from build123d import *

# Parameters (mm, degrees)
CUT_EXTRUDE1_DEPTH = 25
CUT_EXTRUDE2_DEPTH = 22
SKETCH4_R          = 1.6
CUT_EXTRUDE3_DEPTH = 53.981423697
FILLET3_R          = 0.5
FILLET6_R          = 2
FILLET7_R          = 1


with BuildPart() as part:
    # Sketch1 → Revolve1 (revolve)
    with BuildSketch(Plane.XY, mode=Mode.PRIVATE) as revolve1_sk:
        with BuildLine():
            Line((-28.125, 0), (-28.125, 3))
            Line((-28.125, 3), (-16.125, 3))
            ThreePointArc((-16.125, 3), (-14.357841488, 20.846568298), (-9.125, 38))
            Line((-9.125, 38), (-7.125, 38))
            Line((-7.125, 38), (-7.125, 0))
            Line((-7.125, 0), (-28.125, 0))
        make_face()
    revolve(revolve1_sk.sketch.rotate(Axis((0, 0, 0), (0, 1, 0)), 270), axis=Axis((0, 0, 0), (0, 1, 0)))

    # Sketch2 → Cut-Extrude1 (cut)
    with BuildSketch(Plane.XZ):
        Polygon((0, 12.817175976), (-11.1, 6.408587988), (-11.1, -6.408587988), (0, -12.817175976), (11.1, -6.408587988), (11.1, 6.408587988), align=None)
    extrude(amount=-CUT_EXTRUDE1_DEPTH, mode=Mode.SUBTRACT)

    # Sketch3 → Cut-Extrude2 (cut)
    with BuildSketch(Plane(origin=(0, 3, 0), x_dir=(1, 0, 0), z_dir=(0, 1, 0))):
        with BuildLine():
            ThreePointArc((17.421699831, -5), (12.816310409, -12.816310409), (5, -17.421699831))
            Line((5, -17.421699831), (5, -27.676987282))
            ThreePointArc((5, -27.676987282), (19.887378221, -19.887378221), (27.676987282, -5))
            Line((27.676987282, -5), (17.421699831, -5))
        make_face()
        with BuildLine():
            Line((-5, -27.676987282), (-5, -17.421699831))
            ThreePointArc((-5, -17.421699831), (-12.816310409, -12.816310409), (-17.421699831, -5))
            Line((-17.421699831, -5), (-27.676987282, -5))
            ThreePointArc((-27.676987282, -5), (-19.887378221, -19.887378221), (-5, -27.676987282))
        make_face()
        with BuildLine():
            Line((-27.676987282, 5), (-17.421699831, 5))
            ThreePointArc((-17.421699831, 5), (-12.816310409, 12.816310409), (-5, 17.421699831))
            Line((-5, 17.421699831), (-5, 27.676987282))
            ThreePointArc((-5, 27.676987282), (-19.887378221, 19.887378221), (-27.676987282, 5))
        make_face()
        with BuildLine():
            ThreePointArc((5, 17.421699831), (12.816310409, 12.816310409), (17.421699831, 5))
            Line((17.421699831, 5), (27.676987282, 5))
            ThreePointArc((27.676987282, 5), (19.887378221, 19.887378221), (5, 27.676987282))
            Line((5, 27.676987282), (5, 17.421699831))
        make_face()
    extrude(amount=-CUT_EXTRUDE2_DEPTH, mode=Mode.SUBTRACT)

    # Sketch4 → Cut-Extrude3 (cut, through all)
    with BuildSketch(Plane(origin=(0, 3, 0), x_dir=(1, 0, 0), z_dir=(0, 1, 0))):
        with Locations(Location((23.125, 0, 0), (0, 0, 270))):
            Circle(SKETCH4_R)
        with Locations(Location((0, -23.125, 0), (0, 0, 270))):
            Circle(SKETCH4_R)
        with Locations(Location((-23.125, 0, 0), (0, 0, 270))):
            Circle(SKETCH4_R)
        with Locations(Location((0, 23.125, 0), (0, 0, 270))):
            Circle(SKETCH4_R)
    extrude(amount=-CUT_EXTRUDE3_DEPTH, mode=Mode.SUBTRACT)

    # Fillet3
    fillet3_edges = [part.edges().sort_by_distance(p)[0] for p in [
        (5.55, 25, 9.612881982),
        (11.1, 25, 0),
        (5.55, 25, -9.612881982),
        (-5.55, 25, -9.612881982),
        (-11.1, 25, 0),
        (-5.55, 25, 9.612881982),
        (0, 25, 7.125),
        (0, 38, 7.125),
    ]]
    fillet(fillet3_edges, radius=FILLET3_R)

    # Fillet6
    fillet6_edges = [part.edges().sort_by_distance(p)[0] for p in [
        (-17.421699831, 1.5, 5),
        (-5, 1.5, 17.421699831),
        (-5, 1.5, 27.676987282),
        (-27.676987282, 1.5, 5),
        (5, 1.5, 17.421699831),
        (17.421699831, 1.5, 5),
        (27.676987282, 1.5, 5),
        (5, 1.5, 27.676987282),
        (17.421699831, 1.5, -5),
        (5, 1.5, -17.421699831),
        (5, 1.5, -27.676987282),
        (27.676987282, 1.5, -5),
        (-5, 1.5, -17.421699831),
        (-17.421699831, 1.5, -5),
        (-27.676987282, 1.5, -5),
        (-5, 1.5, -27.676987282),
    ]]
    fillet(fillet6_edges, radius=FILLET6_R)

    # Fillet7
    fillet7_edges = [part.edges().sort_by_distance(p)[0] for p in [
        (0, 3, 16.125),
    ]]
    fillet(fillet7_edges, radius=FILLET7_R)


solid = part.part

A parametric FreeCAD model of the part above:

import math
import FreeCAD as App
import Part
import Sketcher
Q = App.Units.Quantity


def edges_at(feature, points):
    """Names of the edges that pass closest to the given points."""
    edges = feature.Shape.Edges
    near = lambda p: min(range(len(edges)), key=lambda i: edges[i].distToShape(Part.Vertex(*p))[0])
    return sorted({f"Edge{near(p) + 1}" for p in points})


def add_polygon(sketch, points):
    """Adds a closed chain of lines whose ends are joined by coincident constraints."""
    first, n = sketch.GeometryCount, len(points)
    for a, b in zip(points, points[1:] + points[:1]):
        sketch.addGeometry(Part.LineSegment(App.Vector(*a, 0), App.Vector(*b, 0)), False)
    for i in range(n):
        sketch.addConstraint(Sketcher.Constraint("Coincident", first + i, 2, first + (i + 1) % n, 1))

doc = App.newDocument("Part")
body = doc.addObject("PartDesign::Body", "Body")

# Sketch on XY plane
sketch1 = body.newObject("Sketcher::SketchObject", "Sketch")
sketch1.AttachmentSupport = (doc.getObject("XY_Plane"), [""])
sketch1.MapMode = "FlatFace"
sketch1.addGeometry(Part.LineSegment(App.Vector(-28.1, 3, 0), App.Vector(-28.1, 0, 0)), False)
sketch1.addGeometry(Part.LineSegment(App.Vector(-28.1, 0, 0), App.Vector(-7.1, 0, 0)), False)
sketch1.addGeometry(Part.LineSegment(App.Vector(-7.1, 0, 0), App.Vector(-7.1, 38, 0)), False)
sketch1.addGeometry(Part.LineSegment(App.Vector(-7.1, 38, 0), App.Vector(-9.1, 38, 0)), False)
sketch1.addGeometry(Part.ArcOfCircle(Part.Circle(App.Vector(74.9, 3, 0), App.Vector(0, 0, 1), 91), math.radians(157), math.radians(180)), False)
sketch1.addGeometry(Part.LineSegment(App.Vector(-16.1, 3, 0), App.Vector(-28.1, 3, 0)), False)
sketch1.addConstraint(Sketcher.Constraint("Coincident", 0, 2, 1, 1))
sketch1.addConstraint(Sketcher.Constraint("Coincident", 1, 2, 2, 1))
sketch1.addConstraint(Sketcher.Constraint("Coincident", 2, 2, 3, 1))
sketch1.addConstraint(Sketcher.Constraint("Coincident", 3, 2, 4, 1))
sketch1.addConstraint(Sketcher.Constraint("Coincident", 4, 2, 5, 1))
sketch1.addConstraint(Sketcher.Constraint("Coincident", 5, 2, 0, 1))
sketch1.addConstraint(Sketcher.Constraint("Vertical", 0))
sketch1.addConstraint(Sketcher.Constraint("Horizontal", 1))
sketch1.addConstraint(Sketcher.Constraint("Vertical", 2))
sketch1.addConstraint(Sketcher.Constraint("Horizontal", 3))
sketch1.addConstraint(Sketcher.Constraint("Horizontal", 5))
sketch1.addConstraint(Sketcher.Constraint("PointOnObject", 0, 2, -1))
sketch1.addConstraint(Sketcher.Constraint("Radius", 4, 91.0))
sketch1.addConstraint(Sketcher.Constraint("DistanceX", 1, 1, 1, 2, 21.0))
sketch1.addConstraint(Sketcher.Constraint("DistanceX", 3, 2, 3, 1, 2.0))
sketch1.addConstraint(Sketcher.Constraint("DistanceX", 5, 2, 5, 1, 12.0))
sketch1.addConstraint(Sketcher.Constraint("DistanceY", 0, 2, 0, 1, 3.0))
sketch1.addConstraint(Sketcher.Constraint("DistanceY", 2, 1, 2, 2, 38.0))
sketch1.addConstraint(Sketcher.Constraint("DistanceX", -1, 1, 4, 3, 74.875))
revolution = body.newObject("PartDesign::Revolution", "Revolution")
revolution.Profile = sketch1
revolution.ReferenceAxis = (sketch1, ["V_Axis"])
revolution.Angle = 360

# Sketch on XZ plane
sketch2 = body.newObject("Sketcher::SketchObject", "Sketch001")
sketch2.AttachmentSupport = (doc.getObject("XZ_Plane"), [""])
sketch2.MapMode = "FlatFace"
add_polygon(sketch2, [(0, 13), (-11, 6), (-11, -6), (0, -13), (11, -6), (11, 6)])  # lines 0-5
sketch2.addConstraint(Sketcher.Constraint("Vertical", 1))
sketch2.addConstraint(Sketcher.Constraint("Vertical", 4))
sketch2.addConstraint(Sketcher.Constraint("Symmetric", 0, 2, 3, 2, -1, 1))
sketch2.addConstraint(Sketcher.Constraint("Symmetric", 2, 2, 5, 2, -1, 1))
sketch2.addConstraint(Sketcher.Constraint("PointOnObject", 2, 2, -2))
sketch2.addConstraint(Sketcher.Constraint("Parallel", 2, 5))
sketch2.addConstraint(Sketcher.Constraint("Horizontal", 1, 2, 3, 2))
sketch2.addConstraint(Sketcher.Constraint("Angle", 0, Q("-150 deg")))
sketch2.addConstraint(Sketcher.Constraint("DistanceX", 0, 2, -1, 1, 11.1))
sketch2.addConstraint(Sketcher.Constraint("DistanceY", 1, 2, 1, 1, 12.817176))
pocket1 = body.newObject("PartDesign::Pocket", "Pocket")
pocket1.Profile = sketch2
pocket1.Length = 25

# Sketch on XZ plane
sketch3 = body.newObject("Sketcher::SketchObject", "Sketch002")
sketch3.AttachmentSupport = (doc.getObject("XZ_Plane"), [""])
sketch3.MapMode = "FlatFace"
sketch3.AttachmentOffset = App.Placement(App.Vector(0, 0, -3), App.Rotation())
sketch3.addGeometry(Part.ArcOfCircle(Part.Circle(App.Vector(0, 0, 0), App.Vector(0, 0, 1), 18), math.radians(16), math.radians(74)), False)
sketch3.addGeometry(Part.LineSegment(App.Vector(5, 17, 0), App.Vector(5, 28, 0)), False)
sketch3.addGeometry(Part.ArcOfCircle(Part.Circle(App.Vector(0, 0, 0), App.Vector(0, 0, 1), 28), math.radians(10), math.radians(80)), False)
sketch3.addGeometry(Part.LineSegment(App.Vector(28, 5, 0), App.Vector(17, 5, 0)), False)
sketch3.addGeometry(Part.LineSegment(App.Vector(-5, 28, 0), App.Vector(-5, 17, 0)), False)
sketch3.addGeometry(Part.ArcOfCircle(Part.Circle(App.Vector(0, 0, 0), App.Vector(0, 0, 1), 18), math.radians(106), math.radians(164)), False)
sketch3.addGeometry(Part.LineSegment(App.Vector(-17, 5, 0), App.Vector(-28, 5, 0)), False)
sketch3.addGeometry(Part.ArcOfCircle(Part.Circle(App.Vector(0, 0, 0), App.Vector(0, 0, 1), 28), math.radians(100), math.radians(170)), False)
sketch3.addGeometry(Part.LineSegment(App.Vector(-28, -5, 0), App.Vector(-17, -5, 0)), False)
sketch3.addGeometry(Part.ArcOfCircle(Part.Circle(App.Vector(0, 0, 0), App.Vector(0, 0, 1), 18), math.radians(-164), math.radians(-106)), False)
sketch3.addGeometry(Part.LineSegment(App.Vector(-5, -17, 0), App.Vector(-5, -28, 0)), False)
sketch3.addGeometry(Part.ArcOfCircle(Part.Circle(App.Vector(0, 0, 0), App.Vector(0, 0, 1), 28), math.radians(-170), math.radians(-100)), False)
sketch3.addGeometry(Part.ArcOfCircle(Part.Circle(App.Vector(0, 0, 0), App.Vector(0, 0, 1), 18), math.radians(-74), math.radians(-16)), False)
sketch3.addGeometry(Part.LineSegment(App.Vector(17, -5, 0), App.Vector(28, -5, 0)), False)
sketch3.addGeometry(Part.ArcOfCircle(Part.Circle(App.Vector(0, 0, 0), App.Vector(0, 0, 1), 28), math.radians(-80), math.radians(-10)), False)
sketch3.addGeometry(Part.LineSegment(App.Vector(5, -28, 0), App.Vector(5, -17, 0)), False)
sketch3.addConstraint(Sketcher.Constraint("Coincident", 0, 2, 1, 1))
sketch3.addConstraint(Sketcher.Constraint("Coincident", 1, 2, 2, 2))
sketch3.addConstraint(Sketcher.Constraint("Coincident", 2, 1, 3, 1))
sketch3.addConstraint(Sketcher.Constraint("Coincident", 3, 2, 0, 1))
sketch3.addConstraint(Sketcher.Constraint("Coincident", 4, 2, 5, 1))
sketch3.addConstraint(Sketcher.Constraint("Coincident", 5, 2, 6, 1))
sketch3.addConstraint(Sketcher.Constraint("Coincident", 6, 2, 7, 2))
sketch3.addConstraint(Sketcher.Constraint("Coincident", 7, 1, 4, 1))
sketch3.addConstraint(Sketcher.Constraint("Coincident", 8, 2, 9, 1))
sketch3.addConstraint(Sketcher.Constraint("Coincident", 9, 2, 10, 1))
sketch3.addConstraint(Sketcher.Constraint("Coincident", 10, 2, 11, 2))
sketch3.addConstraint(Sketcher.Constraint("Coincident", 11, 1, 8, 1))
sketch3.addConstraint(Sketcher.Constraint("Coincident", 12, 2, 13, 1))
sketch3.addConstraint(Sketcher.Constraint("Coincident", 13, 2, 14, 2))
sketch3.addConstraint(Sketcher.Constraint("Coincident", 14, 1, 15, 1))
sketch3.addConstraint(Sketcher.Constraint("Coincident", 15, 2, 12, 1))
sketch3.addConstraint(Sketcher.Constraint("Vertical", 1))
sketch3.addConstraint(Sketcher.Constraint("Horizontal", 3))
sketch3.addConstraint(Sketcher.Constraint("Vertical", 4))
sketch3.addConstraint(Sketcher.Constraint("Horizontal", 6))
sketch3.addConstraint(Sketcher.Constraint("Horizontal", 8))
sketch3.addConstraint(Sketcher.Constraint("Vertical", 10))
sketch3.addConstraint(Sketcher.Constraint("Horizontal", 13))
sketch3.addConstraint(Sketcher.Constraint("Vertical", 15))
sketch3.addConstraint(Sketcher.Constraint("Coincident", 0, 3, -1, 1))
sketch3.addConstraint(Sketcher.Constraint("Coincident", 2, 3, -1, 1))
sketch3.addConstraint(Sketcher.Constraint("Coincident", 5, 3, -1, 1))
sketch3.addConstraint(Sketcher.Constraint("Coincident", 7, 3, -1, 1))
sketch3.addConstraint(Sketcher.Constraint("Coincident", 9, 3, -1, 1))
sketch3.addConstraint(Sketcher.Constraint("Coincident", 11, 3, -1, 1))
sketch3.addConstraint(Sketcher.Constraint("Coincident", 12, 3, -1, 1))
sketch3.addConstraint(Sketcher.Constraint("Coincident", 14, 3, -1, 1))
sketch3.addConstraint(Sketcher.Constraint("Equal", 0, 5))
sketch3.addConstraint(Sketcher.Constraint("Equal", 2, 7))
sketch3.addConstraint(Sketcher.Constraint("Equal", 5, 9))
sketch3.addConstraint(Sketcher.Constraint("Equal", 7, 11))
sketch3.addConstraint(Sketcher.Constraint("Equal", 9, 12))
sketch3.addConstraint(Sketcher.Constraint("Equal", 11, 14))
sketch3.addConstraint(Sketcher.Constraint("Horizontal", 0, 2, 4, 2))
sketch3.addConstraint(Sketcher.Constraint("Horizontal", 3, 2, 5, 2))
sketch3.addConstraint(Sketcher.Constraint("Horizontal", 11, 1, 12, 2))
sketch3.addConstraint(Sketcher.Constraint("Horizontal", 10, 2, 14, 1))
sketch3.addConstraint(Sketcher.Constraint("Vertical", 5, 2, 8, 2))
sketch3.addConstraint(Sketcher.Constraint("Vertical", 7, 1, 9, 2))
sketch3.addConstraint(Sketcher.Constraint("Equal", 13, 1))
sketch3.addConstraint(Sketcher.Constraint("DistanceX", -1, 1, 0, 2, 5.0))
sketch3.addConstraint(Sketcher.Constraint("Radius", 0, 18.125))
sketch3.addConstraint(Sketcher.Constraint("Radius", 2, 28.125))
pocket2 = body.newObject("PartDesign::Pocket", "Pocket001")
pocket2.Profile = sketch3
pocket2.Length = 22
pocket2.Reversed = True

# Sketch on XZ plane
sketch4 = body.newObject("Sketcher::SketchObject", "Sketch003")
sketch4.AttachmentSupport = (doc.getObject("XZ_Plane"), [""])
sketch4.MapMode = "FlatFace"
sketch4.AttachmentOffset = App.Placement(App.Vector(0, 0, -3), App.Rotation())
sketch4.addGeometry(Part.Circle(App.Vector(23.1, 0, 0), App.Vector(0, 0, 1), 1.6), False)
sketch4.addGeometry(Part.Circle(App.Vector(0, 23.1, 0), App.Vector(0, 0, 1), 1.6), False)
sketch4.addGeometry(Part.Circle(App.Vector(-23.1, 0, 0), App.Vector(0, 0, 1), 1.6), False)
sketch4.addGeometry(Part.Circle(App.Vector(0, -23.1, 0), App.Vector(0, 0, 1), 1.6), False)
sketch4.addConstraint(Sketcher.Constraint("Equal", 0, 1))
sketch4.addConstraint(Sketcher.Constraint("Equal", 1, 2))
sketch4.addConstraint(Sketcher.Constraint("Equal", 2, 3))
sketch4.addConstraint(Sketcher.Constraint("Symmetric", 0, 3, 2, 3, -1, 1))
sketch4.addConstraint(Sketcher.Constraint("Symmetric", 1, 3, 3, 3, -1, 1))
sketch4.addConstraint(Sketcher.Constraint("PointOnObject", 0, 3, -1))
sketch4.addConstraint(Sketcher.Constraint("PointOnObject", 1, 3, -2))
sketch4.addConstraint(Sketcher.Constraint("Diameter", 0, 3.2))
sketch4.addConstraint(Sketcher.Constraint("DistanceX", 2, 3, 0, 3, 46.25))
sketch4.addConstraint(Sketcher.Constraint("DistanceY", 3, 3, 1, 3, 46.25))
pocket3 = body.newObject("PartDesign::Pocket", "Pocket002")
pocket3.Profile = sketch4
pocket3.Type = "ThroughAll"
pocket3.Reversed = True
doc.recompute()

fillet = body.newObject("PartDesign::Fillet", "Fillet")
fillet.Base = (pocket3, edges_at(pocket3, [
    (5.55, 25, 9.613),
    (11.1, 25, 0),
    (5.55, 25, -9.613),
    (-5.55, 25, -9.613),
    (-11.1, 25, 0),
    (-5.55, 25, 9.613),
    (0, 25, 7.125),
    (0, 38, 7.125),
]))
fillet.Radius = 0.5
doc.recompute()

fillet2 = body.newObject("PartDesign::Fillet", "Fillet001")
fillet2.Base = (fillet, edges_at(fillet, [
    (-17.422, 1.5, 5),
    (-5, 1.5, 17.422),
    (-5, 1.5, 27.677),
    (-27.677, 1.5, 5),
    (5, 1.5, 17.422),
    (17.422, 1.5, 5),
    (27.677, 1.5, 5),
    (5, 1.5, 27.677),
    (17.422, 1.5, -5),
    (5, 1.5, -17.422),
    (5, 1.5, -27.677),
    (27.677, 1.5, -5),
    (-5, 1.5, -17.422),
    (-17.422, 1.5, -5),
    (-27.677, 1.5, -5),
    (-5, 1.5, -27.677),
]))
fillet2.Radius = 2
doc.recompute()

fillet3 = body.newObject("PartDesign::Fillet", "Fillet002")
fillet3.Base = (fillet2, edges_at(fillet2, [(0, 3, 16.125)]))
fillet3.Radius = 1

doc.recompute()
